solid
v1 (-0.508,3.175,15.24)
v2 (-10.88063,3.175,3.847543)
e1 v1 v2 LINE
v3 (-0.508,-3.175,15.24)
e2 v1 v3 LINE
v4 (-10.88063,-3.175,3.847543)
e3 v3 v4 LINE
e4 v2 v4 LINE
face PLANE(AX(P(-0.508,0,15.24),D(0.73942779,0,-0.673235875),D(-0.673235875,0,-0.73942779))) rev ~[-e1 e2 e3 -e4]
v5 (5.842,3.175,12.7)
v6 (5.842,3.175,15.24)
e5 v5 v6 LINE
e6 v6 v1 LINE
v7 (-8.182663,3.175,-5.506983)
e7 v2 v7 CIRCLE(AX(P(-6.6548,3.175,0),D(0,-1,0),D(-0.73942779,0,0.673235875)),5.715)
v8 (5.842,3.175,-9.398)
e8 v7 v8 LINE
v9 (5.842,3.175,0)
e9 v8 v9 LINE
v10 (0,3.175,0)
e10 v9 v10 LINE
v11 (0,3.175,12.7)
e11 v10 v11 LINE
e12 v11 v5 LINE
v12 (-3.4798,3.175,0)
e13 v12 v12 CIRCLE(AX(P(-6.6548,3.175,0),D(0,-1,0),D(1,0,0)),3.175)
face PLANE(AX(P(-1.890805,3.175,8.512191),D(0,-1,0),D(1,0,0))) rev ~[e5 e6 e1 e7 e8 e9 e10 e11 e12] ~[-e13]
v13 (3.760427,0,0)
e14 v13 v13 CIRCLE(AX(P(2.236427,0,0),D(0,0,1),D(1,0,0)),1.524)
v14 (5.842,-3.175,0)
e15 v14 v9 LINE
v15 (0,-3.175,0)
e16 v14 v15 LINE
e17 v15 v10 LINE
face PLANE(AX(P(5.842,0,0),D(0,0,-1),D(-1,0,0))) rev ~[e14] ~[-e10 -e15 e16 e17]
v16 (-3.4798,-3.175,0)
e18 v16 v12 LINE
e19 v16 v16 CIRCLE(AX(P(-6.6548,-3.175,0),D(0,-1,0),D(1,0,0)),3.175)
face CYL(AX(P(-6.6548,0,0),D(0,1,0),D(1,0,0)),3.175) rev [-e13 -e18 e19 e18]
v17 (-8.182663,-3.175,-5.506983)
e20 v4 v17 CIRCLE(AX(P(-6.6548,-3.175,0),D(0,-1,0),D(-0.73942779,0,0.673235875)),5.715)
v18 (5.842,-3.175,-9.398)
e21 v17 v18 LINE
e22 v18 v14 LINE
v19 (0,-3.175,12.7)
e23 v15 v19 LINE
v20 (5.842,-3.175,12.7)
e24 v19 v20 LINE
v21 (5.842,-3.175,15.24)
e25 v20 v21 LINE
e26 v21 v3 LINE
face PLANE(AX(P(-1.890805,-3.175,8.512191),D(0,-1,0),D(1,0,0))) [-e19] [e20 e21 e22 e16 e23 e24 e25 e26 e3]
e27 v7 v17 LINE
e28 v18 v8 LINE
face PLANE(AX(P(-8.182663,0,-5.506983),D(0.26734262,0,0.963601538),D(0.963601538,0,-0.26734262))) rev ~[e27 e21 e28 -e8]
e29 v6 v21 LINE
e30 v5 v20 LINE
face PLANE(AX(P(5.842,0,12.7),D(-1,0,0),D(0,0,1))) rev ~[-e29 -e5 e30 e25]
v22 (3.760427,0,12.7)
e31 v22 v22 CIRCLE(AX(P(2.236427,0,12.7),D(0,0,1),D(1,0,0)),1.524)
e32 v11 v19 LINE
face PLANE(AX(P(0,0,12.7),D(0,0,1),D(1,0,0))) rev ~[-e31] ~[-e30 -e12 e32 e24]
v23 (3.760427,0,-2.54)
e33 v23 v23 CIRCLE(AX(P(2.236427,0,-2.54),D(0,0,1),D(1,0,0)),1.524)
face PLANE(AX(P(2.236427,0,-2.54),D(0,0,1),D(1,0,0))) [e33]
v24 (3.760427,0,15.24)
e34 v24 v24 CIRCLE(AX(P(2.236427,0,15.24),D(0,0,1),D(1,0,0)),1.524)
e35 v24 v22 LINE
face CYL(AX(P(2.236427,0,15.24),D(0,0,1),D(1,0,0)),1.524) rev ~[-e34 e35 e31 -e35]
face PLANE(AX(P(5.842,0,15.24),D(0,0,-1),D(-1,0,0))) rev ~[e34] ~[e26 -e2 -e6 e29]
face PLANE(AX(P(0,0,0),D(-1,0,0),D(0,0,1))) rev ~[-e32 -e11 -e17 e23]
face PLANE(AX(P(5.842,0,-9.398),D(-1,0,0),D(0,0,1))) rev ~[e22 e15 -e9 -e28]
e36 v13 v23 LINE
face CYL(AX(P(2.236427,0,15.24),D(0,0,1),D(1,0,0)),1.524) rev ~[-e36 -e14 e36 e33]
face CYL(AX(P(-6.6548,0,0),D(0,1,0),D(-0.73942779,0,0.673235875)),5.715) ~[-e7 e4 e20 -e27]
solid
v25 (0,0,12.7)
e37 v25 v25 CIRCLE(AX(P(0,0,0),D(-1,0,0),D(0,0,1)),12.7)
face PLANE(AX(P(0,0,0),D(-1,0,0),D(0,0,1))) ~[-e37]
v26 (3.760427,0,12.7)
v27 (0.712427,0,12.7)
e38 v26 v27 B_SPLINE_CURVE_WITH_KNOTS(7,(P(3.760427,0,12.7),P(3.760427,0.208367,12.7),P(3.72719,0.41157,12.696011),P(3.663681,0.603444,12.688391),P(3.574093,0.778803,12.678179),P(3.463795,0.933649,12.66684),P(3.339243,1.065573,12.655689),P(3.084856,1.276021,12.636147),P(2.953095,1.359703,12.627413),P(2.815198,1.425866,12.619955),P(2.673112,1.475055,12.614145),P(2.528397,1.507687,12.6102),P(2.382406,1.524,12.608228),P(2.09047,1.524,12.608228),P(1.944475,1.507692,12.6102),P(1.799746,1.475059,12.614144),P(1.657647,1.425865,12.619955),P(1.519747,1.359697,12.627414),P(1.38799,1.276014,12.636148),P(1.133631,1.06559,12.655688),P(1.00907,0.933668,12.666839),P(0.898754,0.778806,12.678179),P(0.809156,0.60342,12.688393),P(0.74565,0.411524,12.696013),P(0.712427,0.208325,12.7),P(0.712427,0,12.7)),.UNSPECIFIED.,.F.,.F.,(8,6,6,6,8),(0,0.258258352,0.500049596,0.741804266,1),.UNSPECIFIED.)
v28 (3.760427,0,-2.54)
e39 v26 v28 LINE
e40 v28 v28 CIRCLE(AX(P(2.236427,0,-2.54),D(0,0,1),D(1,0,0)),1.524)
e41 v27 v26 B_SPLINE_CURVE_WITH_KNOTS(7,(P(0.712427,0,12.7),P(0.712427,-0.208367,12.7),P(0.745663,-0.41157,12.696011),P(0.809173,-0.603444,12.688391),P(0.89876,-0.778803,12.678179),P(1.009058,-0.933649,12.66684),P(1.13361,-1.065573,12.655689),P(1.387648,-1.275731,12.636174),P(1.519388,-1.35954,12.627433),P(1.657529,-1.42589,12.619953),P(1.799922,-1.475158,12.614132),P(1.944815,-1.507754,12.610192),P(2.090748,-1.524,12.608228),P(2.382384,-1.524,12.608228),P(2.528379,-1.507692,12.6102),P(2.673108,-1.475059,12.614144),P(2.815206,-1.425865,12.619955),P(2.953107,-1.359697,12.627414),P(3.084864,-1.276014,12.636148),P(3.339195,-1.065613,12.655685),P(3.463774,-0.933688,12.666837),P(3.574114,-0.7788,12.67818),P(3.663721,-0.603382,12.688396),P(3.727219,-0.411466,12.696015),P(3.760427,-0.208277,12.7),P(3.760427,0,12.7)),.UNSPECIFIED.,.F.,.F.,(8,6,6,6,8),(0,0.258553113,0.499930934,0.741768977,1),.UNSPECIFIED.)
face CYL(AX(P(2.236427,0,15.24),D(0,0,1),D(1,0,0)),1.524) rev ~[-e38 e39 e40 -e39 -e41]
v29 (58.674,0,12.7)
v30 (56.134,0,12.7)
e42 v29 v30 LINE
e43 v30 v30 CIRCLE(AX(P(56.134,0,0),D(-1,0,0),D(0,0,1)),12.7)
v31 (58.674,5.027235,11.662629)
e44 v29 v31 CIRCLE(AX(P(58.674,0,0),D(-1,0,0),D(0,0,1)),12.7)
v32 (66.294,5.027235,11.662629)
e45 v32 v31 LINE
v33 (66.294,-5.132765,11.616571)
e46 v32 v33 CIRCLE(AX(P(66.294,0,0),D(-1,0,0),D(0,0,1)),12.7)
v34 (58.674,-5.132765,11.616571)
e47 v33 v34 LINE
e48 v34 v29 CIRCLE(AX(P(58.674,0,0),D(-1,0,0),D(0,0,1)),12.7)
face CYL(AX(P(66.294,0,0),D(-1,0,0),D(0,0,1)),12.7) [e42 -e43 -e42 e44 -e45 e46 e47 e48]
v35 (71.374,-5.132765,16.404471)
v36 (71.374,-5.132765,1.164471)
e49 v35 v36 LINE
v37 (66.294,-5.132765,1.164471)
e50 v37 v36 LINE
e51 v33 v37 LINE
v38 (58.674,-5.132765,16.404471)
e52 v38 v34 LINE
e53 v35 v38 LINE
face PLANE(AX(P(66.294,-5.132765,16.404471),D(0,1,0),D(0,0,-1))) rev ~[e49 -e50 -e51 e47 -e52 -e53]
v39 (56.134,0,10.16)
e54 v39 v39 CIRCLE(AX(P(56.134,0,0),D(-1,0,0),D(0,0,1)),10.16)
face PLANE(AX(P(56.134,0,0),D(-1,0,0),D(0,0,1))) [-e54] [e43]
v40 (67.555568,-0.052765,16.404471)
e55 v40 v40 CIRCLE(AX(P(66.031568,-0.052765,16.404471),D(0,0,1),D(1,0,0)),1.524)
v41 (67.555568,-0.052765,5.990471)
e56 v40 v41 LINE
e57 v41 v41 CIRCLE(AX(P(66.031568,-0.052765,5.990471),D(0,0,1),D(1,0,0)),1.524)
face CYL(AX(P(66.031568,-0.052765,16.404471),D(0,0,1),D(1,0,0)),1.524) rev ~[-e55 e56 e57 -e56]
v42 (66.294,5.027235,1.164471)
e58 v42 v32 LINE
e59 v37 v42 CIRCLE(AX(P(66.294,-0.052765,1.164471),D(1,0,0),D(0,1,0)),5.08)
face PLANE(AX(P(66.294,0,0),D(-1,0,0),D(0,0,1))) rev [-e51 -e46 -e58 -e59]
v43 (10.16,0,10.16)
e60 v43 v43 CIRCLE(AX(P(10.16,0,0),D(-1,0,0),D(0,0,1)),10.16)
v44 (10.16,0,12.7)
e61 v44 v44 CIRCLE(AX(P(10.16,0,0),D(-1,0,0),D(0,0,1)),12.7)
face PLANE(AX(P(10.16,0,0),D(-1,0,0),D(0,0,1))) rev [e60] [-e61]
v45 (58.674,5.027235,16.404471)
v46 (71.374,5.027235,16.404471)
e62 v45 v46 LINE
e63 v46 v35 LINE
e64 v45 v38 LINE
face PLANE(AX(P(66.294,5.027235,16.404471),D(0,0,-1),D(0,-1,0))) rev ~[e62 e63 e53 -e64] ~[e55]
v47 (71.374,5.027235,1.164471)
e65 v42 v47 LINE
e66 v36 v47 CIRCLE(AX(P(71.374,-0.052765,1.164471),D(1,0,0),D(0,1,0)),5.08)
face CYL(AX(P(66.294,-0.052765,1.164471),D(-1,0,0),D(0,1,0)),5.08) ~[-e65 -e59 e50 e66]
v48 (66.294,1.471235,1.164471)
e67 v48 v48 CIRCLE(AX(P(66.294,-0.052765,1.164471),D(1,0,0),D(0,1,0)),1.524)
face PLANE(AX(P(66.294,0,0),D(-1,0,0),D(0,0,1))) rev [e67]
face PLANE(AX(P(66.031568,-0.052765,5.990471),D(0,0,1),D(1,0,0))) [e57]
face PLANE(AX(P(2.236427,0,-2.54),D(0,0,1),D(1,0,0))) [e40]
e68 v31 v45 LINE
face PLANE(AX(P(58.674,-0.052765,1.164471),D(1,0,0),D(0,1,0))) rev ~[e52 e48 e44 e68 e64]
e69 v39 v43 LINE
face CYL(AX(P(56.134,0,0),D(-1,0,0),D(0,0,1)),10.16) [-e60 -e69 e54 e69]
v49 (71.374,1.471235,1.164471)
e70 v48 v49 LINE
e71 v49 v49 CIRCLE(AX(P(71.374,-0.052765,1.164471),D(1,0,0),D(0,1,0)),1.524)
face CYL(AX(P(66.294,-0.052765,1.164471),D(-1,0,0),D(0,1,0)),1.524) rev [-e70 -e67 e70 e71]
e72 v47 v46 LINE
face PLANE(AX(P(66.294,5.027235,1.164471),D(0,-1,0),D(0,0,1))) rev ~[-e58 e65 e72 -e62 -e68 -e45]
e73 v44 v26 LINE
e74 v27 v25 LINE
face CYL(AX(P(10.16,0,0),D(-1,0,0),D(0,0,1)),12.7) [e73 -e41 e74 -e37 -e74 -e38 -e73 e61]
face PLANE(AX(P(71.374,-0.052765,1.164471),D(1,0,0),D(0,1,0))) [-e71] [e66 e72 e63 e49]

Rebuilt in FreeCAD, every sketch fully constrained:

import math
import FreeCAD as App
import Part
import Sketcher

V = App.Vector
Q = App.Units.Quantity

doc = App.newDocument("Part")
body = doc.addObject("PartDesign::Body", "Body")

sketch1 = body.newObject("Sketcher::SketchObject", "Sketch")
sketch1.AttachmentSupport = (doc.getObject("XZ_Plane"), [""])
sketch1.MapMode = "FlatFace"
sketch1.addGeometry([
    Part.LineSegment(V(0, 0, 0), V(0, 12.7, 0)),
    Part.LineSegment(V(0, 12.7, 0), V(5.8, 12.7, 0)),
    Part.LineSegment(V(5.8, 12.7, 0), V(5.8, 15.2, 0)),
    Part.LineSegment(V(5.8, 15.2, 0), V(-0.5, 15.2, 0)),
    Part.LineSegment(V(-0.5, 15.2, 0), V(-10.9, 3.8, 0)),
    Part.ArcOfCircle(Part.Circle(V(-6.7, 0, 0), V(0, 0, 1), 5.7), math.radians(138), math.radians(254)),
    Part.LineSegment(V(-8.2, -5.5, 0), V(5.8, -9.4, 0)),
    Part.LineSegment(V(5.8, -9.4, 0), V(5.8, 0, 0)),
    Part.LineSegment(V(5.8, 0, 0), V(0, 0, 0)),
    Part.Circle(V(-6.7, 0, 0), V(0, 0, 1), 3.2),
], False)
sketch1.addConstraint([
    Sketcher.Constraint("Coincident", 0, 2, 1, 1),
    Sketcher.Constraint("Coincident", 1, 2, 2, 1),
    Sketcher.Constraint("Coincident", 2, 2, 3, 1),
    Sketcher.Constraint("Coincident", 3, 2, 4, 1),
    Sketcher.Constraint("Tangent", 4, 2, 5, 1),
    Sketcher.Constraint("Tangent", 5, 2, 6, 1),
    Sketcher.Constraint("Coincident", 6, 2, 7, 1),
    Sketcher.Constraint("Coincident", 7, 2, 8, 1),
    Sketcher.Constraint("Coincident", 8, 2, 0, 1),
    Sketcher.Constraint("Vertical", 0),
    Sketcher.Constraint("Horizontal", 1),
    Sketcher.Constraint("Vertical", 2),
    Sketcher.Constraint("Horizontal", 3),
    Sketcher.Constraint("Vertical", 7),
    Sketcher.Constraint("Horizontal", 8),
    Sketcher.Constraint("Coincident", 8, 2, -1, 1),
    Sketcher.Constraint("Coincident", 9, 3, 5, 3),
    Sketcher.Constraint("PointOnObject", 5, 3, -1),
    Sketcher.Constraint("Vertical", 2, 2, 6, 2),
    Sketcher.Constraint("Diameter", 9, Q("0.25 in")),
    Sketcher.Constraint("DistanceY", 0, 1, 0, 2, Q("0.5 in")),
    Sketcher.Constraint("DistanceY", 2, 1, 2, 2, Q("0.1 in")),
    Sketcher.Constraint("Radius", 5, Q("0.225 in")),
    Sketcher.Constraint("DistanceX", 1, 1, 1, 2, Q("0.23 in")),
    Sketcher.Constraint("DistanceX", 3, 2, 3, 1, Q("0.25 in")),
    Sketcher.Constraint("DistanceY", 7, 1, 7, 2, Q("0.37 in")),
    Sketcher.Constraint("DistanceX", 5, 3, -1, 1, Q("0.262 in")),
])
pad1 = body.newObject("PartDesign::Pad", "Pad")
pad1.Profile = sketch1
pad1.Type = "TwoLengths"
pad1.Length = Q("0.125 in")
pad1.Length2 = Q("0.125 in")
pad1.Reversed = True
body2 = doc.addObject("PartDesign::Body", "Body001")

sketch2 = body2.newObject("Sketcher::SketchObject", "Sketch001")
sketch2.AttachmentSupport = (doc.getObject("XZ_Plane001"), [""])
sketch2.MapMode = "FlatFace"
sketch2.addGeometry([
    Part.LineSegment(V(0, 12.7, 0), V(0, 0, 0)),
    Part.LineSegment(V(0, 0, 0), V(66.3, 0, 0)),
    Part.LineSegment(V(66.3, 0, 0), V(66.3, 12.7, 0)),
    Part.LineSegment(V(66.3, 12.7, 0), V(56.1, 12.7, 0)),
    Part.LineSegment(V(56.1, 12.7, 0), V(56.1, 10.2, 0)),
    Part.LineSegment(V(56.1, 10.2, 0), V(10.2, 10.2, 0)),
    Part.LineSegment(V(10.2, 10.2, 0), V(10.2, 12.7, 0)),
    Part.LineSegment(V(10.2, 12.7, 0), V(0, 12.7, 0)),
], False)
sketch2.addConstraint([
    Sketcher.Constraint("Coincident", 0, 2, 1, 1),
    Sketcher.Constraint("Coincident", 1, 2, 2, 1),
    Sketcher.Constraint("Coincident", 2, 2, 3, 1),
    Sketcher.Constraint("Coincident", 3, 2, 4, 1),
    Sketcher.Constraint("Coincident", 4, 2, 5, 1),
    Sketcher.Constraint("Coincident", 5, 2, 6, 1),
    Sketcher.Constraint("Coincident", 6, 2, 7, 1),
    Sketcher.Constraint("Coincident", 7, 2, 0, 1),
    Sketcher.Constraint("Vertical", 0),
    Sketcher.Constraint("Horizontal", 1),
    Sketcher.Constraint("Vertical", 2),
    Sketcher.Constraint("Horizontal", 3),
    Sketcher.Constraint("Vertical", 4),
    Sketcher.Constraint("Horizontal", 5),
    Sketcher.Constraint("Vertical", 6),
    Sketcher.Constraint("Horizontal", 7),
    Sketcher.Constraint("Coincident", 0, 2, -1, 1),
    Sketcher.Constraint("Horizontal", 3, 2, 6, 2),
    Sketcher.Constraint("Equal", 3, 7),
    Sketcher.Constraint("DistanceX", 3, 2, 3, 1, Q("0.4 in")),
    Sketcher.Constraint("DistanceY", 0, 2, 0, 1, Q("0.5 in")),
    Sketcher.Constraint("DistanceY", 4, 2, 4, 1, Q("0.1 in")),
    Sketcher.Constraint("DistanceX", 1, 1, 1, 2, Q("2.61 in")),
])
revolution = body2.newObject("PartDesign::Revolution", "Revolution")
revolution.Profile = sketch2
revolution.ReferenceAxis = (sketch2, ["H_Axis"])
revolution.Angle = 360

sketch3 = body2.newObject("Sketcher::SketchObject", "Sketch002")
sketch3.AttachmentSupport = (doc.getObject("YZ_Plane001"), [""])
sketch3.MapMode = "FlatFace"
sketch3.AttachmentOffset = App.Placement(V(0, 0, 2.61 * 25.4), App.Rotation())
sketch3.addGeometry([
    Part.ArcOfCircle(Part.Circle(V(-0.1, 1.2, 0), V(0, 0, 1), 5.1), math.radians(180), math.radians(360)),
    Part.LineSegment(V(5, 1.2, 0), V(5, 16.4, 0)),
    Part.LineSegment(V(5, 16.4, 0), V(-5.1, 16.4, 0)),
    Part.LineSegment(V(-5.1, 16.4, 0), V(-5.1, 1.2, 0)),
    Part.Circle(V(-0.1, 1.2, 0), V(0, 0, 1), 1.5),
], False)
sketch3.addConstraint([
    Sketcher.Constraint("Tangent", 0, 2, 1, 1),
    Sketcher.Constraint("Coincident", 1, 2, 2, 1),
    Sketcher.Constraint("Coincident", 2, 2, 3, 1),
    Sketcher.Constraint("Tangent", 3, 2, 0, 1),
    Sketcher.Constraint("Vertical", 1),
    Sketcher.Constraint("Horizontal", 2),
    Sketcher.Constraint("Vertical", 3),
    Sketcher.Constraint("Coincident", 4, 3, 0, 3),
    Sketcher.Constraint("Radius", 0, Q("0.2 in")),
    Sketcher.Constraint("Diameter", 4, Q("0.12 in")),
    Sketcher.Constraint("DistanceY", 1, 1, 1, 2, Q("0.6 in")),
    Sketcher.Constraint("DistanceY", -1, 1, 0, 3, 1.164471),
    Sketcher.Constraint("DistanceX", 0, 3, -1, 1, 0.052765),
])
pad2 = body2.newObject("PartDesign::Pad", "Pad001")
pad2.Profile = sketch3
pad2.Type = "TwoLengths"
pad2.Length = Q("0.3 in")
pad2.Length2 = Q("0.2 in")
pad2.Reversed = True
body3 = doc.addObject("PartDesign::Body", "Body002")

sketch4 = body3.newObject("Sketcher::SketchObject", "Sketch003")
sketch4.AttachmentSupport = (doc.getObject("XY_Plane002"), [""])
sketch4.MapMode = "FlatFace"
sketch4.AttachmentOffset = App.Placement(V(0, 0, 0.6 * 25.4), App.Rotation())
sketch4.addGeometry(Part.Circle(V(2.2, 0, 0), V(0, 0, 1), 1.5), False)
sketch4.addConstraint([
    Sketcher.Constraint("PointOnObject", 0, 3, -1),
    Sketcher.Constraint("Diameter", 0, Q("0.12 in")),
    Sketcher.Constraint("DistanceX", -1, 1, 0, 3, 2.236427),
])
pad3 = body3.newObject("PartDesign::Pad", "Pad002")
pad3.Profile = sketch4
pad3.Length = Q("0.7 in")
pad3.Reversed = True
doc.recompute()

body4 = doc.addObject("PartDesign::Body", "Body003")
body4.BaseFeature = body3
boolean = body.newObject("PartDesign::Boolean", "Boolean")
boolean.Type = "Cut"
boolean.addObjects([body4])
doc.recompute()

boolean2 = body2.newObject("PartDesign::Boolean", "Boolean001")
boolean2.Type = "Cut"
boolean2.addObjects([body3])

sketch5 = body2.newObject("Sketcher::SketchObject", "Sketch004")
sketch5.AttachmentSupport = (doc.getObject("XY_Plane001"), [""])
sketch5.MapMode = "FlatFace"
sketch5.AttachmentOffset = App.Placement(V(0, 0, 16.404471), App.Rotation())
sketch5.addGeometry(Part.Circle(V(66, -0.1, 0), V(0, 0, 1), 1.5), False)
sketch5.addConstraint([
    Sketcher.Constraint("Diameter", 0, Q("0.12 in")),
    Sketcher.Constraint("DistanceX", -1, 1, 0, 3, 66.031568),
    Sketcher.Constraint("DistanceY", 0, 3, -1, 1, 0.052765),
])
pocket1 = body2.newObject("PartDesign::Pocket", "Pocket")
pocket1.Profile = sketch5
pocket1.Length = Q("0.41 in")

doc.recompute()
